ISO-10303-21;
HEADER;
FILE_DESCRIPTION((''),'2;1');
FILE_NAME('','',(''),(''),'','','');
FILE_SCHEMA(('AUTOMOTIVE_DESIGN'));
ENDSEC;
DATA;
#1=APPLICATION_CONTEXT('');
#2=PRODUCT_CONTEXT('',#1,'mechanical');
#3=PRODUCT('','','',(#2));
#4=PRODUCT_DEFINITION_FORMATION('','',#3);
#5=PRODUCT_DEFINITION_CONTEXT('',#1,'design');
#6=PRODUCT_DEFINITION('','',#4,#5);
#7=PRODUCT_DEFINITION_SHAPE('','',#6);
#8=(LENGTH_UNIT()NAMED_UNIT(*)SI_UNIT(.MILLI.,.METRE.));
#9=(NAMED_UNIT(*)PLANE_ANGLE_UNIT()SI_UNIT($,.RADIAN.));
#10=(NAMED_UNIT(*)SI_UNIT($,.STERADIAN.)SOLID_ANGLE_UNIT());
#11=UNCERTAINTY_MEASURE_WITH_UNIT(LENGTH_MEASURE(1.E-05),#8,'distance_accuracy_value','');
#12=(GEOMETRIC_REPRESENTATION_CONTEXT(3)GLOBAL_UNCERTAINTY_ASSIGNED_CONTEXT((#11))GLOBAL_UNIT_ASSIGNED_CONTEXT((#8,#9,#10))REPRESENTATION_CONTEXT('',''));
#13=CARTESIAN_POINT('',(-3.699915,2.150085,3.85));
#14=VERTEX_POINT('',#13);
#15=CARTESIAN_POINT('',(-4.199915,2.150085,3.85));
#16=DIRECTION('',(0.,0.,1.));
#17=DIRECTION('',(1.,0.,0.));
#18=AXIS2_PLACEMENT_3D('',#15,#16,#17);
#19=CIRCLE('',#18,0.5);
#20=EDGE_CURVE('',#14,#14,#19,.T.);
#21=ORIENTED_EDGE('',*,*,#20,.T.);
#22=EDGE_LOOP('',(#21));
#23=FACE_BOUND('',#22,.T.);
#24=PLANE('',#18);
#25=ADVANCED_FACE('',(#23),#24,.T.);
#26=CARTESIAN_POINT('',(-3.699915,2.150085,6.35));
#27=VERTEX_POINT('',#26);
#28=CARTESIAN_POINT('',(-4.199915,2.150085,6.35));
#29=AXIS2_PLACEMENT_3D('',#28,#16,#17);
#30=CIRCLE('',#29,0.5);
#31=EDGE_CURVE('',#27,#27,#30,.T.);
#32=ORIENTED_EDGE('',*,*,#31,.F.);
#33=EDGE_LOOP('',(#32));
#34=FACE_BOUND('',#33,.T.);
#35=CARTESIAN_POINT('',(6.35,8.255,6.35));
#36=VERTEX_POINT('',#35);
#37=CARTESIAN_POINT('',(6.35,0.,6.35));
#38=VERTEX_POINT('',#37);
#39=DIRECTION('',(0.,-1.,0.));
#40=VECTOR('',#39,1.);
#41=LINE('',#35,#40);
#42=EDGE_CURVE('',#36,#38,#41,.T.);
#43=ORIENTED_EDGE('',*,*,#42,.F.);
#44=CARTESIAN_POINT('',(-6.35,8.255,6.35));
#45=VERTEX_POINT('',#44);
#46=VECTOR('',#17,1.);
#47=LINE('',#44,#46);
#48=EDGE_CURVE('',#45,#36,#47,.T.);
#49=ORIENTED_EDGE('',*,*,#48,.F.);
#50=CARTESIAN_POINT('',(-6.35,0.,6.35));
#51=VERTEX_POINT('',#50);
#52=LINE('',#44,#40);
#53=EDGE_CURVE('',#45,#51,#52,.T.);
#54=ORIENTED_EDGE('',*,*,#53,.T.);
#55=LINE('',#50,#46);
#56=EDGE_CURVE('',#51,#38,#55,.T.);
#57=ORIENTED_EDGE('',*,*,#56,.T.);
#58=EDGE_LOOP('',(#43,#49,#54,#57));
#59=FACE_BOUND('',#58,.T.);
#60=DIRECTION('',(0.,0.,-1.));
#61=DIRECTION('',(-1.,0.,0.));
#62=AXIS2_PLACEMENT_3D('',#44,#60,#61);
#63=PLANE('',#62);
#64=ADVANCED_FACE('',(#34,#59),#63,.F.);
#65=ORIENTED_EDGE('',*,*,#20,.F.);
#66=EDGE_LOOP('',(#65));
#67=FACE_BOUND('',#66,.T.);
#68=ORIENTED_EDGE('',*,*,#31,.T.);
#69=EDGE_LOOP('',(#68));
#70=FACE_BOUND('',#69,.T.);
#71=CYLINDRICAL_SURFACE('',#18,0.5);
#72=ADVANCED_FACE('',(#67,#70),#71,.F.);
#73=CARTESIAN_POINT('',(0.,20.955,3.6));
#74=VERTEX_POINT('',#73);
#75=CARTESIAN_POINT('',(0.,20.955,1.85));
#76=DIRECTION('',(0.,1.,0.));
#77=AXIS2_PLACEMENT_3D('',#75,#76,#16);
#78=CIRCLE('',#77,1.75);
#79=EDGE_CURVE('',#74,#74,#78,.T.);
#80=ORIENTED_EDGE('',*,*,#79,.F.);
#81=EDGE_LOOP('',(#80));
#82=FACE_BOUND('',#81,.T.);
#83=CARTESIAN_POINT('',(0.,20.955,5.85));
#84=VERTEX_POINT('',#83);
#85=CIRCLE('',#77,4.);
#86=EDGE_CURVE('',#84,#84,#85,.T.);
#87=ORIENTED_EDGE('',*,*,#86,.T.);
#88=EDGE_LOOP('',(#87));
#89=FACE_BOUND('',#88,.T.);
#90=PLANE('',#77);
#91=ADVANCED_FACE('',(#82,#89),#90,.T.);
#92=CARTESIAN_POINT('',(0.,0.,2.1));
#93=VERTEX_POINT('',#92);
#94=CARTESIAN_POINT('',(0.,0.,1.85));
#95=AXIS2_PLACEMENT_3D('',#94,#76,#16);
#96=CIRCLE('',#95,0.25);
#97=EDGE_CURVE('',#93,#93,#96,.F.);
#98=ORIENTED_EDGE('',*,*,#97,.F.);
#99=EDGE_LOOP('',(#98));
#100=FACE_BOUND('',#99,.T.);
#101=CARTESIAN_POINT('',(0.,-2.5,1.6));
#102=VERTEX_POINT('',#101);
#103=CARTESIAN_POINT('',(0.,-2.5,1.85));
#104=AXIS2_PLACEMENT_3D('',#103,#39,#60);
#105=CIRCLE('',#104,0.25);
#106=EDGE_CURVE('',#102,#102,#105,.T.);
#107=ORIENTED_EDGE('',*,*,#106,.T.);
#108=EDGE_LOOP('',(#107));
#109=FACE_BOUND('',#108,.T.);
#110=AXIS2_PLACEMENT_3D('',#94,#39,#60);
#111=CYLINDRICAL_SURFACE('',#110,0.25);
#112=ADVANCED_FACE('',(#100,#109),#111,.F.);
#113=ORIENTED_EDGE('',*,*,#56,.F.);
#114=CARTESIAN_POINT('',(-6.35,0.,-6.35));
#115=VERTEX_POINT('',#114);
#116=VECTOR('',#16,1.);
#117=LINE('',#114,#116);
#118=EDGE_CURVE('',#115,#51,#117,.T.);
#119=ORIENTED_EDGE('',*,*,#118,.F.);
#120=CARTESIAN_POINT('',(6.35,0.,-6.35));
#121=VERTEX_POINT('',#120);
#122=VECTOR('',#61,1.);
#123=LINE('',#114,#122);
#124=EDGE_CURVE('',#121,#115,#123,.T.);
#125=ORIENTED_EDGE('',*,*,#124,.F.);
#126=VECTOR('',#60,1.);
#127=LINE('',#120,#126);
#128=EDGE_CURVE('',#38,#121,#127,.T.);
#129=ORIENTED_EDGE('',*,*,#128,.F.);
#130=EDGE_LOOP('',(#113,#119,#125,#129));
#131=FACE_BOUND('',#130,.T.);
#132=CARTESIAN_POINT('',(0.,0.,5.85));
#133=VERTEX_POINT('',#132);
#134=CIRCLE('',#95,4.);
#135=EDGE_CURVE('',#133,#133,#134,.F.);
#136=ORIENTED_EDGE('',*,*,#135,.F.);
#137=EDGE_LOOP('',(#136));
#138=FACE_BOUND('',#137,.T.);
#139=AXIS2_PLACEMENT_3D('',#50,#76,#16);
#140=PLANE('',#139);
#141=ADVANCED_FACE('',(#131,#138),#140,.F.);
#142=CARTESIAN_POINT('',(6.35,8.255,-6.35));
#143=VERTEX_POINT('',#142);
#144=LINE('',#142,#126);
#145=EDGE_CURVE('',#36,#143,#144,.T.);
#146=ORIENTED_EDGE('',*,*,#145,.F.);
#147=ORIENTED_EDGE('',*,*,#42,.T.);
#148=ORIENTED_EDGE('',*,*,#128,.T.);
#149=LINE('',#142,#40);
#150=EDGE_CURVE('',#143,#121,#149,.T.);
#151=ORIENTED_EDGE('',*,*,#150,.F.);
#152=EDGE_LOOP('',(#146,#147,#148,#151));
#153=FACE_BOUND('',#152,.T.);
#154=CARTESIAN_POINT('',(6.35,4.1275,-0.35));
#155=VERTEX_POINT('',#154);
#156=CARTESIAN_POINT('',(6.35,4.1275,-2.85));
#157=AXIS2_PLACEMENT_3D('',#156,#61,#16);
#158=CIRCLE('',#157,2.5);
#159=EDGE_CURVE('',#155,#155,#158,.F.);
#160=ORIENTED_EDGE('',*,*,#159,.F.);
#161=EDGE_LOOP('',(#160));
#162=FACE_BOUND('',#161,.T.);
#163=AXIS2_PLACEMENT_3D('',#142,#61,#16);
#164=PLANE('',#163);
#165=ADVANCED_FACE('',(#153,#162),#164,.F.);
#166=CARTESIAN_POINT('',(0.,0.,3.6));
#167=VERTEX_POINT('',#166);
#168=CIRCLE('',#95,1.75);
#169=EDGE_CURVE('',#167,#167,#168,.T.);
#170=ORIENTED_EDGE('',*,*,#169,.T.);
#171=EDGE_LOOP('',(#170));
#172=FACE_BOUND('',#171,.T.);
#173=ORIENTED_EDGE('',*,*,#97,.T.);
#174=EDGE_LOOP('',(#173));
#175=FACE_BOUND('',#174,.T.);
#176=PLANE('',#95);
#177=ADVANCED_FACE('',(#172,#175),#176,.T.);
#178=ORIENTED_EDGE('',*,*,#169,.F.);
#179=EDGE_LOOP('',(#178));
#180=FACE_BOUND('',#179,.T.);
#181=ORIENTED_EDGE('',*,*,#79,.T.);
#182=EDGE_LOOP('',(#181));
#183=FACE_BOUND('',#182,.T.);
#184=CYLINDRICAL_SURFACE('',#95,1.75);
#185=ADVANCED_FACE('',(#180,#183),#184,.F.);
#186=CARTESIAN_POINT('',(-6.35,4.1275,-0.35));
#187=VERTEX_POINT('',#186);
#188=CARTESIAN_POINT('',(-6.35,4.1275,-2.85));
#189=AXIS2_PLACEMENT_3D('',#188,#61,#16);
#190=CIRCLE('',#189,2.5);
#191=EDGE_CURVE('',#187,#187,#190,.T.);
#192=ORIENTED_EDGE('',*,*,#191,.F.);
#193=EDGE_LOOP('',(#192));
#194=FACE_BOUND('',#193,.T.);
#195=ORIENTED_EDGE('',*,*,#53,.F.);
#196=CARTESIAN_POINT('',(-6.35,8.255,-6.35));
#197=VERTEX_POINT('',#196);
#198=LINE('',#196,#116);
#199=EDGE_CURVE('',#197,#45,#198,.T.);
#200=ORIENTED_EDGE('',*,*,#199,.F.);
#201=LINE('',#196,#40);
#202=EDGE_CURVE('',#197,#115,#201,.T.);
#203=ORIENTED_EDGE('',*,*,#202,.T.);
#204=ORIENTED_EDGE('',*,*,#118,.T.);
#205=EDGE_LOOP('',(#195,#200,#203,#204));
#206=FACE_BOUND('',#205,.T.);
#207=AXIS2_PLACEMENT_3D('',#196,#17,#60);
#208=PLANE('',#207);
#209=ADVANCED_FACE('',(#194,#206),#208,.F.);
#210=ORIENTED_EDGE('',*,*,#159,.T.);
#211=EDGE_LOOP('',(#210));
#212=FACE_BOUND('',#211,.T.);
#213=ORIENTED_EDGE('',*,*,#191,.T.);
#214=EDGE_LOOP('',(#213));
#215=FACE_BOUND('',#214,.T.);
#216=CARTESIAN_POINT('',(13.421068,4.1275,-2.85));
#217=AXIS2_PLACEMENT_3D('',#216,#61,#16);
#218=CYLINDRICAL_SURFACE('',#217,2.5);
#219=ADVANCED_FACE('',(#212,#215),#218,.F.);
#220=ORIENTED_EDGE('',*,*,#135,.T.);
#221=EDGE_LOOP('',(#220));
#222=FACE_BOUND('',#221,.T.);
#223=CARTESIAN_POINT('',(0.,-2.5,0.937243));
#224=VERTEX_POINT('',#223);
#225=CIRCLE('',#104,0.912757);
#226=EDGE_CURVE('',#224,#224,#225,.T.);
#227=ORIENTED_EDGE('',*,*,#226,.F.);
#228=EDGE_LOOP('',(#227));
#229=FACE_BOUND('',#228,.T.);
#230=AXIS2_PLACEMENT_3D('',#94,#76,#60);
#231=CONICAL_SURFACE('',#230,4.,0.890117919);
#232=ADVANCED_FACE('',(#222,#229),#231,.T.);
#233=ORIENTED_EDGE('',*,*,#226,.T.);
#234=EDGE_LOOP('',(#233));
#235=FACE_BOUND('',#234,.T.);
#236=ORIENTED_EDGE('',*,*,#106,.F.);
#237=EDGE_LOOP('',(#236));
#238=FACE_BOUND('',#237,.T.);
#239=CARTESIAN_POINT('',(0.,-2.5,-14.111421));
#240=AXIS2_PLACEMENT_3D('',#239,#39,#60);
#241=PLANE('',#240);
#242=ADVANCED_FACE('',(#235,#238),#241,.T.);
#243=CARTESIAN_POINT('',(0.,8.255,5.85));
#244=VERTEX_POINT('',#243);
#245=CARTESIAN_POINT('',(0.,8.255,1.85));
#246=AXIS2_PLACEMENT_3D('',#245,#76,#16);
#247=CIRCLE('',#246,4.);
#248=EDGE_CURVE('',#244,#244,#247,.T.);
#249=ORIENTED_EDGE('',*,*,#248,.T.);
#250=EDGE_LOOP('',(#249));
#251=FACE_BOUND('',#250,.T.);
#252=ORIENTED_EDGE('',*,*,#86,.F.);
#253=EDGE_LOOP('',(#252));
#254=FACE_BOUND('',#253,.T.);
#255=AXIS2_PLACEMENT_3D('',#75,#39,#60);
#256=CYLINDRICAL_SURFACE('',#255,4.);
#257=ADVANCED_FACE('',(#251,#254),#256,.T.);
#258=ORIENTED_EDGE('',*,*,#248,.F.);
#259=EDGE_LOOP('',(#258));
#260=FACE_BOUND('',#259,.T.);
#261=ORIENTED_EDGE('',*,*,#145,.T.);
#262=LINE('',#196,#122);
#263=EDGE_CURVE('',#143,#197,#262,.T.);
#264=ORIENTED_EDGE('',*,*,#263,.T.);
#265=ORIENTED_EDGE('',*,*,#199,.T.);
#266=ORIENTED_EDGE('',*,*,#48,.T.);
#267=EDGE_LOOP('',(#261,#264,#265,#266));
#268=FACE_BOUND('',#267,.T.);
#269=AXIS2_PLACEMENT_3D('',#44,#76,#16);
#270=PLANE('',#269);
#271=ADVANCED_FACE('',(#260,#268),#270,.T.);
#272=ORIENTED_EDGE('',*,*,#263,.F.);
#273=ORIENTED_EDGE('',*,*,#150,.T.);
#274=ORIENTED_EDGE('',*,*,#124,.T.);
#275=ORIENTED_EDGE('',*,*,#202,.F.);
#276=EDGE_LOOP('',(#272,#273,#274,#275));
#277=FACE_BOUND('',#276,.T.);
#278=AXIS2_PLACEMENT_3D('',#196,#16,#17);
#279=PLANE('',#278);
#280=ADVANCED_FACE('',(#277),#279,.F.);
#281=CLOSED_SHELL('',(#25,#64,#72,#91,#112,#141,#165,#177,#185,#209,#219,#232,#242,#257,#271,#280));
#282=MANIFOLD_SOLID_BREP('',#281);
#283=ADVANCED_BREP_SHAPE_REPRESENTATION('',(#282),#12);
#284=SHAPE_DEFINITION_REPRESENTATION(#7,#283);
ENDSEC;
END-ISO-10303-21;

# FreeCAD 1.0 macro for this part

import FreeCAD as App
import Part
import Sketcher
Q = App.Units.Quantity

doc = App.newDocument("Part")
body = doc.addObject("PartDesign::Body", "Body")

sketch1 = body.newObject("Sketcher::SketchObject", "Sketch")
sketch1.AttachmentSupport = (doc.getObject("XZ_Plane"), [""])
sketch1.MapMode = "FlatFace"
sketch1.addGeometry([
    Part.LineSegment(App.Vector(-6, -6, 0), App.Vector(-6, 6, 0)),
    Part.LineSegment(App.Vector(-6, 6, 0), App.Vector(6, 6, 0)),
    Part.LineSegment(App.Vector(6, 6, 0), App.Vector(6, -6, 0)),
    Part.LineSegment(App.Vector(6, -6, 0), App.Vector(-6, -6, 0)),
], False)
sketch1.addConstraint([
    Sketcher.Constraint("Coincident", 0, 2, 1, 1),
    Sketcher.Constraint("Coincident", 1, 2, 2, 1),
    Sketcher.Constraint("Coincident", 2, 2, 3, 1),
    Sketcher.Constraint("Coincident", 3, 2, 0, 1),
    Sketcher.Constraint("Vertical", 0),
    Sketcher.Constraint("Horizontal", 1),
    Sketcher.Constraint("Vertical", 2),
    Sketcher.Constraint("Horizontal", 3),
    Sketcher.Constraint("Symmetric", 0, 2, 2, 2, -1, 1),
    Sketcher.Constraint("Equal", 3, 0),
    Sketcher.Constraint("DistanceX", 1, 1, 1, 2, Q("12.7 mm")),
])
pad1 = body.newObject("PartDesign::Pad", "Pad")
pad1.Profile = sketch1
pad1.Length = 8.255
pad1.Reversed = True

sketch2 = body.newObject("Sketcher::SketchObject", "Sketch001")
sketch2.AttachmentSupport = (doc.getObject("XZ_Plane"), [""])
sketch2.MapMode = "FlatFace"
sketch2.AttachmentOffset = App.Placement(App.Vector(0, 0, -8.255), App.Rotation())
sketch2.addGeometry(Part.Circle(App.Vector(0, 1.9, 0), App.Vector(0, 0, 1), 4), False)
sketch2.addConstraint([
    Sketcher.Constraint("PointOnObject", 0, 3, -2),
    Sketcher.Constraint("Diameter", 0, Q("8 mm")),
    Sketcher.Constraint("DistanceY", -1, 1, 0, 3, Q("1.85 mm")),
])
pad2 = body.newObject("PartDesign::Pad", "Pad001")
pad2.Profile = sketch2
pad2.Length = 12.7
pad2.Reversed = True

sketch3 = body.newObject("Sketcher::SketchObject", "Sketch002")
sketch3.AttachmentSupport = (doc.getObject("XZ_Plane"), [""])
sketch3.MapMode = "FlatFace"
sketch3.addGeometry(Part.Circle(App.Vector(0, 1.9, 0), App.Vector(0, 0, 1), 4), False)
sketch3.addConstraint([
    Sketcher.Constraint("PointOnObject", 0, 3, -2),
    Sketcher.Constraint("Diameter", 0, Q("8 mm")),
    Sketcher.Constraint("DistanceY", -1, 1, 0, 3, Q("1.85 mm")),
])
pad3 = body.newObject("PartDesign::Pad", "Pad002")
pad3.Profile = sketch3
pad3.Length = 2.5
pad3.TaperAngle = -51

sketch4 = body.newObject("Sketcher::SketchObject", "Sketch003")
sketch4.AttachmentSupport = (doc.getObject("XZ_Plane"), [""])
sketch4.MapMode = "FlatFace"
sketch4.AttachmentOffset = App.Placement(App.Vector(0, 0, 2.5), App.Rotation())
sketch4.addGeometry(Part.Circle(App.Vector(0, 1.85, 0), App.Vector(0, 0, 1), 0.25), False)
sketch4.addConstraint([
    Sketcher.Constraint("PointOnObject", 0, 3, -2),
    Sketcher.Constraint("Diameter", 0, Q("0.5 mm")),
    Sketcher.Constraint("DistanceY", -1, 1, 0, 3, Q("1.85 mm")),
])
pocket1 = body.newObject("PartDesign::Pocket", "Pocket")
pocket1.Profile = sketch4
pocket1.Length = 2.5

sketch5 = body.newObject("Sketcher::SketchObject", "Sketch004")
sketch5.AttachmentSupport = (doc.getObject("XZ_Plane"), [""])
sketch5.MapMode = "FlatFace"
sketch5.AttachmentOffset = App.Placement(App.Vector(0, 0, -20.955), App.Rotation())
sketch5.addGeometry(Part.Circle(App.Vector(0, 1.9, 0), App.Vector(0, 0, 1), 1.8), False)
sketch5.addConstraint([
    Sketcher.Constraint("PointOnObject", 0, 3, -2),
    Sketcher.Constraint("Diameter", 0, Q("3.5 mm")),
    Sketcher.Constraint("DistanceY", -1, 1, 0, 3, Q("1.85 mm")),
])
pocket2 = body.newObject("PartDesign::Pocket", "Pocket001")
pocket2.Profile = sketch5
pocket2.Length = 20.955
pocket2.Reversed = True

sketch6 = body.newObject("Sketcher::SketchObject", "Sketch005")
sketch6.AttachmentSupport = (doc.getObject("YZ_Plane"), [""])
sketch6.MapMode = "FlatFace"
sketch6.AttachmentOffset = App.Placement(App.Vector(0, 0, -6.35), App.Rotation())
sketch6.addGeometry(Part.Circle(App.Vector(4.1, -2.9, 0), App.Vector(0, 0, 1), 2.5), False)
sketch6.addConstraint([
    Sketcher.Constraint("Diameter", 0, Q("5 mm")),
    Sketcher.Constraint("DistanceY", 0, 3, -1, 1, Q("2.85 mm")),
    Sketcher.Constraint("DistanceX", -1, 1, 0, 3, Q("4.1275 mm")),
])
pocket3 = body.newObject("PartDesign::Pocket", "Pocket002")
pocket3.Profile = sketch6
pocket3.Length = 12.7
pocket3.Reversed = True

sketch7 = body.newObject("Sketcher::SketchObject", "Sketch006")
sketch7.AttachmentSupport = (doc.getObject("XY_Plane"), [""])
sketch7.MapMode = "FlatFace"
sketch7.AttachmentOffset = App.Placement(App.Vector(0, 0, 6.35), App.Rotation())
sketch7.addGeometry(Part.Circle(App.Vector(-4.2, 2.2, 0), App.Vector(0, 0, 1), 0.5), False)
sketch7.addConstraint([
    Sketcher.Constraint("Diameter", 0, Q("1 mm")),
    Sketcher.Constraint("DistanceX", 0, 3, -1, 1, Q("4.199915 mm")),
    Sketcher.Constraint("DistanceY", -1, 1, 0, 3, Q("2.150085 mm")),
])
pocket4 = body.newObject("PartDesign::Pocket", "Pocket003")
pocket4.Profile = sketch7
pocket4.Length = 2.5

doc.recompute()
